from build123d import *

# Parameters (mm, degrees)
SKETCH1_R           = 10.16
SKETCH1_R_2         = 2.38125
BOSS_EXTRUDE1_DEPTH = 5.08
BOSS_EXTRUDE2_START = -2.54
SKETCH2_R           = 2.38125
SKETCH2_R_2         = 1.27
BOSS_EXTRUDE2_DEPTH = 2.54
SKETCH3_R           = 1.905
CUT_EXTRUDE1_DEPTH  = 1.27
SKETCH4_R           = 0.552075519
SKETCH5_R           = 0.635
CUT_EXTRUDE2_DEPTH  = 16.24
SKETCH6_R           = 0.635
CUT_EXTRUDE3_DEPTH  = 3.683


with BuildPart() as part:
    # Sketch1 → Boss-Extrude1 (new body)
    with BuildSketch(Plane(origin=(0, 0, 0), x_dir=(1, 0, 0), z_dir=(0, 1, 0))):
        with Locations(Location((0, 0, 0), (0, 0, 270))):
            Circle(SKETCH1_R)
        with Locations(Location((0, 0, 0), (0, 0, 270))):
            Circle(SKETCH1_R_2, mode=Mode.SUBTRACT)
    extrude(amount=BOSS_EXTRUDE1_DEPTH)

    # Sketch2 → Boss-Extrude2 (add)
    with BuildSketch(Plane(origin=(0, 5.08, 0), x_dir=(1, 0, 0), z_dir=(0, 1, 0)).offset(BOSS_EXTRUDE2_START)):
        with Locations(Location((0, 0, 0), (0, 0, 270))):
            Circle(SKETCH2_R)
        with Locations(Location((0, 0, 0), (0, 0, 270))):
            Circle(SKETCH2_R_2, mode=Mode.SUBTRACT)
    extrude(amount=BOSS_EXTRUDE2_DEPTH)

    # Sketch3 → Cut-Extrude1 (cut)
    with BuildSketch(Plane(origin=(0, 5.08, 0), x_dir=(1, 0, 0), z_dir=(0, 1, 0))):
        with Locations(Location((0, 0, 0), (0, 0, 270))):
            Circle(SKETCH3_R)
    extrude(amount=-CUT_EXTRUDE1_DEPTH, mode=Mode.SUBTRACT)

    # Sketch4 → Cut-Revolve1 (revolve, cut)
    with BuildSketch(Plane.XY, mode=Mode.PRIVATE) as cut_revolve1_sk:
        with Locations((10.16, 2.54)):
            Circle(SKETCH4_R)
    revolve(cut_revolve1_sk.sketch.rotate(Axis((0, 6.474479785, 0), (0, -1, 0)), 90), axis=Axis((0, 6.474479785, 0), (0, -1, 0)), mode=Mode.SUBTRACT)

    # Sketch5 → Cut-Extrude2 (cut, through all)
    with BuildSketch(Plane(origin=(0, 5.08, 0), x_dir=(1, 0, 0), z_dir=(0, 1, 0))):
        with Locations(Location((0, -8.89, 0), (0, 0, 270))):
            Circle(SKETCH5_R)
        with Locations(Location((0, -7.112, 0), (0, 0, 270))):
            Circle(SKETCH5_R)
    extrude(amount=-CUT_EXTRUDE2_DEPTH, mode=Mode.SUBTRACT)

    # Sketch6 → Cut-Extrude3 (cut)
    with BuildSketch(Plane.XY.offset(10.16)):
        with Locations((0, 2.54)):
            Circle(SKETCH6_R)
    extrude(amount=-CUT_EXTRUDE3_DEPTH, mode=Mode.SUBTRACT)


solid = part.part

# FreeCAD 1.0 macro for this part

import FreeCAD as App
import Part
import Sketcher

V = App.Vector
Q = App.Units.Quantity

doc = App.newDocument("Part")
body = doc.addObject("PartDesign::Body", "Body")

sketch1 = doc.addObject("Sketcher::SketchObject", "Sketch")
body.addObject(sketch1)
sketch1.AttachmentSupport = (doc.XZ_Plane, [""])
sketch1.MapMode = "FlatFace"
sketch1.addGeometry(Part.Circle(V(0, 0, 0), V(0, 0, 1), 10.2), False)
sketch1.addGeometry(Part.Circle(V(0, 0, 0), V(0, 0, 1), 2.4), False)
sketch1.addConstraint(Sketcher.Constraint("Coincident", 0, 3, -1, 1))
sketch1.addConstraint(Sketcher.Constraint("Coincident", 1, 3, -1, 1))
sketch1.addConstraint(Sketcher.Constraint("Diameter", 0, Q("0.8 in")))
sketch1.addConstraint(Sketcher.Constraint("Diameter", 1, Q("0.1875 in")))
pad1 = doc.addObject("PartDesign::Pad", "Pad")
body.addObject(pad1)
pad1.Profile = sketch1
pad1.Length = Q("0.2 in")
pad1.Reversed = True

sketch2 = doc.addObject("Sketcher::SketchObject", "Sketch001")
body.addObject(sketch2)
sketch2.AttachmentSupport = (doc.XZ_Plane, [""])
sketch2.MapMode = "FlatFace"
sketch2.AttachmentOffset = App.Placement(V(0, 0, -0.1 * 25.4), App.Rotation())
sketch2.addGeometry(Part.Circle(V(0, 0, 0), V(0, 0, 1), 2.4), False)
sketch2.addGeometry(Part.Circle(V(0, 0, 0), V(0, 0, 1), 1.3), False)
sketch2.addConstraint(Sketcher.Constraint("Coincident", 0, 3, -1, 1))
sketch2.addConstraint(Sketcher.Constraint("Coincident", 1, 3, -1, 1))
sketch2.addConstraint(Sketcher.Constraint("Diameter", 1, Q("0.1 in")))
sketch2.addConstraint(Sketcher.Constraint("Diameter", 0, Q("0.1875 in")))
pad2 = doc.addObject("PartDesign::Pad", "Pad001")
body.addObject(pad2)
pad2.Profile = sketch2
pad2.Length = Q("0.1 in")
pad2.Reversed = True

sketch3 = doc.addObject("Sketcher::SketchObject", "Sketch002")
body.addObject(sketch3)
sketch3.AttachmentSupport = (doc.XZ_Plane, [""])
sketch3.MapMode = "FlatFace"
sketch3.AttachmentOffset = App.Placement(V(0, 0, -0.2 * 25.4), App.Rotation())
sketch3.addGeometry(Part.Circle(V(0, 0, 0), V(0, 0, 1), 1.9), False)
sketch3.addConstraint(Sketcher.Constraint("Coincident", 0, 3, -1, 1))
sketch3.addConstraint(Sketcher.Constraint("Diameter", 0, Q("0.15 in")))
pocket1 = doc.addObject("PartDesign::Pocket", "Pocket")
body.addObject(pocket1)
pocket1.Profile = sketch3
pocket1.Length = Q("0.05 in")
pocket1.Reversed = True

sketch4 = doc.addObject("Sketcher::SketchObject", "Sketch003")
body.addObject(sketch4)
sketch4.AttachmentSupport = (doc.XY_Plane, [""])
sketch4.MapMode = "FlatFace"
sketch4.addGeometry(Part.Circle(V(10.2, 2.5, 0), V(0, 0, 1), 0.6), False)
sketch4.addConstraint(Sketcher.Constraint("DistanceX", -1, 1, 0, 3, Q("0.4 in")))
sketch4.addConstraint(Sketcher.Constraint("DistanceY", -1, 1, 0, 3, Q("0.1 in")))
sketch4.addConstraint(Sketcher.Constraint("Diameter", 0, Q("1.104151 mm")))
groove = doc.addObject("PartDesign::Groove", "Groove")
body.addObject(groove)
groove.Profile = sketch4
groove.ReferenceAxis = (sketch4, ["V_Axis"])
groove.Angle = 360

sketch5 = doc.addObject("Sketcher::SketchObject", "Sketch004")
body.addObject(sketch5)
sketch5.AttachmentSupport = (doc.XZ_Plane, [""])
sketch5.MapMode = "FlatFace"
sketch5.AttachmentOffset = App.Placement(V(0, 0, -0.2 * 25.4), App.Rotation())
sketch5.addGeometry(Part.Circle(V(0, 8.9, 0), V(0, 0, 1), 0.6), False)
sketch5.addGeometry(Part.Circle(V(0, 7.1, 0), V(0, 0, 1), 0.6), False)
sketch5.addConstraint(Sketcher.Constraint("Equal", 0, 1))
sketch5.addConstraint(Sketcher.Constraint("PointOnObject", 0, 3, -2))
sketch5.addConstraint(Sketcher.Constraint("PointOnObject", 1, 3, -2))
sketch5.addConstraint(Sketcher.Constraint("Diameter", 0, Q("0.05 in")))
sketch5.addConstraint(Sketcher.Constraint("DistanceY", -1, 1, 0, 3, Q("0.35 in")))
sketch5.addConstraint(Sketcher.Constraint("DistanceY", -1, 1, 1, 3, Q("0.28 in")))
pocket2 = doc.addObject("PartDesign::Pocket", "Pocket001")
body.addObject(pocket2)
pocket2.Profile = sketch5
pocket2.Type = "ThroughAll"
pocket2.Reversed = True

sketch6 = doc.addObject("Sketcher::SketchObject", "Sketch005")
body.addObject(sketch6)
sketch6.AttachmentSupport = (doc.XY_Plane, [""])
sketch6.MapMode = "FlatFace"
sketch6.AttachmentOffset = App.Placement(V(0, 0, 0.4 * 25.4), App.Rotation())
sketch6.addGeometry(Part.Circle(V(0, 2.5, 0), V(0, 0, 1), 0.6), False)
sketch6.addConstraint(Sketcher.Constraint("PointOnObject", 0, 3, -2))
sketch6.addConstraint(Sketcher.Constraint("Diameter", 0, Q("0.05 in")))
sketch6.addConstraint(Sketcher.Constraint("DistanceY", -1, 1, 0, 3, Q("0.1 in")))
pocket3 = doc.addObject("PartDesign::Pocket", "Pocket002")
body.addObject(pocket3)
pocket3.Profile = sketch6
pocket3.Length = Q("0.145 in")

doc.recompute()
